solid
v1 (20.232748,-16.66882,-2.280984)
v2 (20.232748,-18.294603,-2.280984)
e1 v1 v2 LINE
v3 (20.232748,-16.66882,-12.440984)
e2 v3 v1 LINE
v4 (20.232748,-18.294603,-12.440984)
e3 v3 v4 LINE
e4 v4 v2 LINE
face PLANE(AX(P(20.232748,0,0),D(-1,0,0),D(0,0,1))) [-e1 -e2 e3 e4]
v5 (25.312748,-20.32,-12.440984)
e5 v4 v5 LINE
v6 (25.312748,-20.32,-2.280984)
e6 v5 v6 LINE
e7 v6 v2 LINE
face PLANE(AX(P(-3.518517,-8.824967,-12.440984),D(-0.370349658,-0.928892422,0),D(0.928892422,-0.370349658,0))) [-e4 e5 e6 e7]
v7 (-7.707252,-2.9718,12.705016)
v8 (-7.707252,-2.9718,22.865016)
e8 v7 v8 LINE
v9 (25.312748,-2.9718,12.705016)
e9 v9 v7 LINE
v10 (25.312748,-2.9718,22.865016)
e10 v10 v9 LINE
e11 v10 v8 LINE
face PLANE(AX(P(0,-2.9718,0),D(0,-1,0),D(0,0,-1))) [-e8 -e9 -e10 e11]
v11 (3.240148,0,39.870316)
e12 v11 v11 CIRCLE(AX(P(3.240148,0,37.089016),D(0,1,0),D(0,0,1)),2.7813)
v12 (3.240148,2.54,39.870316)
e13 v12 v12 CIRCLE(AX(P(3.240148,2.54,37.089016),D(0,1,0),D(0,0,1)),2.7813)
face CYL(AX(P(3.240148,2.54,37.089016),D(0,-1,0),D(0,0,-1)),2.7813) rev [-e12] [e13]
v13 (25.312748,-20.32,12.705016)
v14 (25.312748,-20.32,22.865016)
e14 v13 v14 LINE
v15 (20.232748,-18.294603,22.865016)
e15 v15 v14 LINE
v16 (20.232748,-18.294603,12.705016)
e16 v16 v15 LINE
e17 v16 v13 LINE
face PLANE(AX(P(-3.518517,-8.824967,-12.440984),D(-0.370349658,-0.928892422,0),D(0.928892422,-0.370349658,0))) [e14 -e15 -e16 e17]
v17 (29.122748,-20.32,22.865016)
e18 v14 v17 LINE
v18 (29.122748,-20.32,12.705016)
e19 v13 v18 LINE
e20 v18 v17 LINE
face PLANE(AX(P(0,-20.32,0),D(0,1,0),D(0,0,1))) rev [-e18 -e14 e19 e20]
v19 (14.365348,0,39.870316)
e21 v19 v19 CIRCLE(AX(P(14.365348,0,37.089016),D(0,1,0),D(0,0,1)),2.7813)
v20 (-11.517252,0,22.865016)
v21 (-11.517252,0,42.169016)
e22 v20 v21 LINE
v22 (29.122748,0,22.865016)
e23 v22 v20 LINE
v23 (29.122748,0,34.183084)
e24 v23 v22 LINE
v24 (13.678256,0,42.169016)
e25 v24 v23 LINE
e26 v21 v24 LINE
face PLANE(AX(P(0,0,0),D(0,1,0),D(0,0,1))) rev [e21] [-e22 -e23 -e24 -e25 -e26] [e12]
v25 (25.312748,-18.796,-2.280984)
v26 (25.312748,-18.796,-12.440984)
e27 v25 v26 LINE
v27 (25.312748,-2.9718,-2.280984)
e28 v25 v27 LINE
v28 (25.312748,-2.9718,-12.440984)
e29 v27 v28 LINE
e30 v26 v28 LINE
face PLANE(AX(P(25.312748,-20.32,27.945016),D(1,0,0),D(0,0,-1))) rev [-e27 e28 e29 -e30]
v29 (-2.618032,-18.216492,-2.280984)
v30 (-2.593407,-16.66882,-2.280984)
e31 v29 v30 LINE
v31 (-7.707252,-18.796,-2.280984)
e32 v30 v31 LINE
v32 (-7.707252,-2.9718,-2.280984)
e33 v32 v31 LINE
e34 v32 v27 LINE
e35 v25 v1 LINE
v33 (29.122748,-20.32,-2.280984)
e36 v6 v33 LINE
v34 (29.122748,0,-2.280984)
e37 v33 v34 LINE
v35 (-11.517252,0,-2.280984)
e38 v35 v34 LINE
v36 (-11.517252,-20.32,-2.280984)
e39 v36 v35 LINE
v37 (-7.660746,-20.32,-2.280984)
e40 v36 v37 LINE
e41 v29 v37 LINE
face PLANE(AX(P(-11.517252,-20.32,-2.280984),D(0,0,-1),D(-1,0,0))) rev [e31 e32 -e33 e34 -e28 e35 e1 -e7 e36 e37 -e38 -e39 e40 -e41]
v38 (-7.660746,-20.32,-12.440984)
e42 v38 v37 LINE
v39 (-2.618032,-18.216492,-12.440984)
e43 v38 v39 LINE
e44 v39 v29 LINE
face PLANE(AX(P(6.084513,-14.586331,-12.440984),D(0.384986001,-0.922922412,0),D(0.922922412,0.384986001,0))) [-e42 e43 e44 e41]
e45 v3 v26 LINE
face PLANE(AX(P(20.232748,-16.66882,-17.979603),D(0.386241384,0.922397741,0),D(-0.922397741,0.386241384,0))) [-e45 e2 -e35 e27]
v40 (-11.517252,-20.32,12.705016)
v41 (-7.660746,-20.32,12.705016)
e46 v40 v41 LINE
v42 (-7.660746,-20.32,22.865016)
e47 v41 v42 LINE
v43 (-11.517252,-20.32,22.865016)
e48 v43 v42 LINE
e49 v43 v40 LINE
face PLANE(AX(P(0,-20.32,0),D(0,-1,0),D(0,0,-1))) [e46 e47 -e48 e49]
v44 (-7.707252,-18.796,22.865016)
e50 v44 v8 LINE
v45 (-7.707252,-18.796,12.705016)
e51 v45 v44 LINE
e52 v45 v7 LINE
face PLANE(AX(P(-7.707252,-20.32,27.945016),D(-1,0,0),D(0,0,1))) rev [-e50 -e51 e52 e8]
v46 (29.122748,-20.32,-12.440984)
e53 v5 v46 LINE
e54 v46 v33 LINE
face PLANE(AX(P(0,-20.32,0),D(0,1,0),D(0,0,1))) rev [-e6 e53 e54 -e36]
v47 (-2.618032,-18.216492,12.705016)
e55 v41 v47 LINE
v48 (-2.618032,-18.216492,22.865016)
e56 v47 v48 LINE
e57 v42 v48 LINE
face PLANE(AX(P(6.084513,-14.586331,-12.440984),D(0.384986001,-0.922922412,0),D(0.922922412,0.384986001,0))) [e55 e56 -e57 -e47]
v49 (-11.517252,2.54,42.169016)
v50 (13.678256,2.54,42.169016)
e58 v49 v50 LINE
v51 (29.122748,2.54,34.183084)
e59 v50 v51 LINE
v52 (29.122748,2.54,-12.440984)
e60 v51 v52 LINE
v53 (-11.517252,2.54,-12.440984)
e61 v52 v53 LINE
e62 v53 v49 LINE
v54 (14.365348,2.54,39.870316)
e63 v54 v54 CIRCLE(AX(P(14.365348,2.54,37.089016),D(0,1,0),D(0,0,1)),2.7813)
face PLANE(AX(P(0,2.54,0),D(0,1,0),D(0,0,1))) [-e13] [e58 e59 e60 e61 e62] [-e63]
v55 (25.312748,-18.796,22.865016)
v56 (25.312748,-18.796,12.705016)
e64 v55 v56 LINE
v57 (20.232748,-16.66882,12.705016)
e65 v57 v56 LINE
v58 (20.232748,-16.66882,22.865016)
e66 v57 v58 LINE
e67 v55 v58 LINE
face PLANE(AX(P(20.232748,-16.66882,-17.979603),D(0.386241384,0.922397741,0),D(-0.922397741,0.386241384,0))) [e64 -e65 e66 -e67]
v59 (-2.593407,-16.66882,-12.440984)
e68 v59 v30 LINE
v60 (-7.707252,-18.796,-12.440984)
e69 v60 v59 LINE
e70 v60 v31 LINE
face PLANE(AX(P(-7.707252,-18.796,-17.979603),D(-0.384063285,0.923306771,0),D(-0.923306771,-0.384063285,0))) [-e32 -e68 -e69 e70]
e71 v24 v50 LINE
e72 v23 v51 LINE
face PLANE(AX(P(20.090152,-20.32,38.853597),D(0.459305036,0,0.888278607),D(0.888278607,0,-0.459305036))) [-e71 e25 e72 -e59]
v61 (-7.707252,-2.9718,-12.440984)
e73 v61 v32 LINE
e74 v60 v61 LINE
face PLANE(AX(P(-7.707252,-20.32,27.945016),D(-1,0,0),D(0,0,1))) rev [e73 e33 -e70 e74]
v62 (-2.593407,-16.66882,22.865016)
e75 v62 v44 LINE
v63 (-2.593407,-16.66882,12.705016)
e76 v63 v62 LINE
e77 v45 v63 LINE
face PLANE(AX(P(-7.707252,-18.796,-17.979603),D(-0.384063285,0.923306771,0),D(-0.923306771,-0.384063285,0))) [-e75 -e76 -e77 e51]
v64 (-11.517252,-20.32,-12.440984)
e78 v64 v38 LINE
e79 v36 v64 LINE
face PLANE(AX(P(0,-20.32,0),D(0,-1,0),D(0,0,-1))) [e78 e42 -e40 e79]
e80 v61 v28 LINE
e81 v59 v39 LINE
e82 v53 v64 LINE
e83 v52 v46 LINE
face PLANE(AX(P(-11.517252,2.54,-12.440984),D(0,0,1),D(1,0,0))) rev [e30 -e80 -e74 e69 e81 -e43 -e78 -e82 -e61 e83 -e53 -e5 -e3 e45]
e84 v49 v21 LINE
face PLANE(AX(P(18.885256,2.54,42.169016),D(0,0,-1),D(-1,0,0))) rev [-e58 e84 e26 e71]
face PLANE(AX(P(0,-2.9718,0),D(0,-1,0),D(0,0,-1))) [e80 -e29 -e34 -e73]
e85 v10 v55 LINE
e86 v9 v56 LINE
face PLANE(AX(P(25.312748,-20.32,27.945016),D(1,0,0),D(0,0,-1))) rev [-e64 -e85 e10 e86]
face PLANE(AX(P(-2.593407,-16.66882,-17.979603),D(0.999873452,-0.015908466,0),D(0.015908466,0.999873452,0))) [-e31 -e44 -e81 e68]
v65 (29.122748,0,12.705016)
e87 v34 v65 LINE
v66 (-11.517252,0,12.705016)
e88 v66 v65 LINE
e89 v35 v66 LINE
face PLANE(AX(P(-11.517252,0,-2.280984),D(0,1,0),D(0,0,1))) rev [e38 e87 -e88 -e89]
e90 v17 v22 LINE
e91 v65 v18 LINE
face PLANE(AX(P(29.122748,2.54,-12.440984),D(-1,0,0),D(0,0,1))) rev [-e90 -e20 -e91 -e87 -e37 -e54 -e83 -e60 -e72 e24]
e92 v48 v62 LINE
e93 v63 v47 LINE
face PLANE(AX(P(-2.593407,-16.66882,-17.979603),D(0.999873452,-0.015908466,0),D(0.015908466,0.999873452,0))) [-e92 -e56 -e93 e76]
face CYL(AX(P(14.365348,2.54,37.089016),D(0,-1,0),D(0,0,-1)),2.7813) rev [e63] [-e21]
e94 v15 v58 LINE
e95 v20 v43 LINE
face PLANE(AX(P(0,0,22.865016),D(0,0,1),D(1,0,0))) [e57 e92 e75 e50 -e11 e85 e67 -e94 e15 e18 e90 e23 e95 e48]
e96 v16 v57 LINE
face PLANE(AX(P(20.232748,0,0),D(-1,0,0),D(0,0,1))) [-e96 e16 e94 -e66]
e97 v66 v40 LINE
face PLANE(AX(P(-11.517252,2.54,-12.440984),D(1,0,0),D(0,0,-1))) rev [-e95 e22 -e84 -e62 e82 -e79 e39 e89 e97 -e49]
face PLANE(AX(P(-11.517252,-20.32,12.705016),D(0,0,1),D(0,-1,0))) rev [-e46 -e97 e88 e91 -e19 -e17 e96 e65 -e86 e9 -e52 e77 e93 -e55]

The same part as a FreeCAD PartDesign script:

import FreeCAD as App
import Part
import Sketcher
Q = App.Units.Quantity


def add_polygon(sketch, points):
    """Adds a closed chain of lines whose ends are joined by coincident constraints."""
    first, n = sketch.GeometryCount, len(points)
    for a, b in zip(points, points[1:] + points[:1]):
        sketch.addGeometry(Part.LineSegment(App.Vector(*a, 0), App.Vector(*b, 0)), False)
    for i in range(n):
        sketch.addConstraint(Sketcher.Constraint("Coincident", first + i, 2, first + (i + 1) % n, 1))

doc = App.newDocument("Part")
body = doc.addObject("PartDesign::Body", "Body")

# Sketch on XZ plane
sketch1 = body.newObject("Sketcher::SketchObject", "Sketch")
sketch1.AttachmentSupport = (doc.getObject("XZ_Plane"), [""])
sketch1.MapMode = "FlatFace"
add_polygon(sketch1, [(29.122748, -12.440984), (-11.517252, -12.440984), (-11.517252, 42.169016), (29.122748, 42.169016)])  # lines 0-3
sketch1.addGeometry(Part.Circle(App.Vector(14.365348, 37.089016, 0), App.Vector(0, 0, 1), 2.7813), False)  # 4
sketch1.addGeometry(Part.Circle(App.Vector(3.240148, 37.089016, 0), App.Vector(0, 0, 1), 2.7813), False)  # 5
sketch1.addConstraint([
    Sketcher.Constraint("Horizontal", 0),
    Sketcher.Constraint("Vertical", 1),
    Sketcher.Constraint("Horizontal", 2),
    Sketcher.Constraint("Vertical", 3),
    Sketcher.Constraint("Equal", 4, 5),
    Sketcher.Constraint("Horizontal", 4, 3, 5, 3),
    Sketcher.Constraint("Diameter", 4, Q("0.219 in")),
    Sketcher.Constraint("DistanceX", 0, 2, 0, 1, Q("1.6 in")),
    Sketcher.Constraint("DistanceY", 1, 1, 1, 2, Q("2.15 in")),
    Sketcher.Constraint("DistanceY", 5, 3, 1, 2, Q("0.2 in")),
    Sketcher.Constraint("DistanceX", 5, 3, 4, 3, Q("0.438 in")),
    Sketcher.Constraint("DistanceX", 0, 2, 5, 3, Q("0.581 in")),
    Sketcher.Constraint("DistanceX", -1, 1, 4, 3, Q("14.365348 mm")),
    Sketcher.Constraint("DistanceY", -1, 1, 4, 3, Q("37.089016 mm")),
])
pad1 = body.newObject("PartDesign::Pad", "Pad")
pad1.Profile = sketch1
pad1.Length = Q("0.1 in")
pad1.Reversed = True

# Sketch on XZ plane
sketch2 = body.newObject("Sketcher::SketchObject", "Sketch001")
sketch2.AttachmentSupport = (doc.getObject("XZ_Plane"), [""])
sketch2.MapMode = "FlatFace"
add_polygon(sketch2, [(-11.517252, 27.945016), (-11.517252, -12.440984), (-7.707252, -12.440984), (-7.707252, 27.945016)])  # lines 0-3
add_polygon(sketch2, [(25.312748, 27.945016), (25.312748, -12.440984), (29.122748, -12.440984), (29.122748, 27.945016)])  # lines 4-7
sketch2.addConstraint([
    Sketcher.Constraint("Vertical", 0),
    Sketcher.Constraint("Horizontal", 1),
    Sketcher.Constraint("Vertical", 2),
    Sketcher.Constraint("Horizontal", 3),
    Sketcher.Constraint("Vertical", 4),
    Sketcher.Constraint("Horizontal", 5),
    Sketcher.Constraint("Vertical", 6),
    Sketcher.Constraint("Horizontal", 7),
    Sketcher.Constraint("Horizontal", 1, 2, 4, 2),
    Sketcher.Constraint("Horizontal", 3, 2, 6, 2),
    Sketcher.Constraint("Equal", 3, 5),
    Sketcher.Constraint("DistanceX", 1, 1, 1, 2, Q("0.15 in")),
    Sketcher.Constraint("DistanceY", 0, 2, 0, 1, Q("1.59 in")),
    Sketcher.Constraint("DistanceX", 1, 2, 4, 2, Q("1.3 in")),
    Sketcher.Constraint("DistanceX", 0, 2, -1, 1, Q("11.517252 mm")),
    Sketcher.Constraint("DistanceY", 0, 2, -1, 1, Q("12.440984 mm")),
])
pad2 = body.newObject("PartDesign::Pad", "Pad001")
pad2.Profile = sketch2
pad2.Length = Q("0.8 in")

# Sketch on YZ plane
sketch3 = body.newObject("Sketcher::SketchObject", "Sketch002")
sketch3.AttachmentSupport = (doc.getObject("YZ_Plane"), [""])
sketch3.MapMode = "FlatFace"
sketch3.AttachmentOffset = App.Placement(App.Vector(0, 0, -7.707252), App.Rotation())
add_polygon(sketch3, [(-18.796, 27.945016), (-20.32, 27.945016), (-20.32, -12.440984), (-18.796, -12.440984)])  # lines 0-3
sketch3.addConstraint([
    Sketcher.Constraint("Horizontal", 0),
    Sketcher.Constraint("Vertical", 1),
    Sketcher.Constraint("Horizontal", 2),
    Sketcher.Constraint("Vertical", 3),
    Sketcher.Constraint("DistanceX", 0, 2, 0, 1, Q("0.06 in")),
    Sketcher.Constraint("DistanceY", 1, 2, 1, 1, Q("1.59 in")),
    Sketcher.Constraint("DistanceX", 0, 2, -1, 1, Q("0.8 in")),
    Sketcher.Constraint("DistanceY", -1, 1, 0, 2, Q("27.945016 mm")),
])
pad3 = body.newObject("PartDesign::Pad", "Pad002")
pad3.Profile = sketch3
pad3.Length = Q("0.2 in")

# Sketch on YZ plane
sketch4 = body.newObject("Sketcher::SketchObject", "Sketch003")
sketch4.AttachmentSupport = (doc.getObject("YZ_Plane"), [""])
sketch4.MapMode = "FlatFace"
sketch4.AttachmentOffset = App.Placement(App.Vector(0, 0, 25.312748), App.Rotation())
add_polygon(sketch4, [(-18.796, -12.440984), (-20.32, -12.440984), (-20.32, 27.945016), (-18.796, 27.945016)])  # lines 0-3
sketch4.addConstraint([
    Sketcher.Constraint("Horizontal", 0),
    Sketcher.Constraint("Vertical", 1),
    Sketcher.Constraint("Horizontal", 2),
    Sketcher.Constraint("Vertical", 3),
    Sketcher.Constraint("DistanceX", 0, 2, 0, 1, Q("0.06 in")),
    Sketcher.Constraint("DistanceY", 1, 1, 1, 2, Q("1.59 in")),
    Sketcher.Constraint("DistanceX", 0, 2, -1, 1, Q("0.8 in")),
    Sketcher.Constraint("DistanceY", 0, 2, -1, 1, Q("12.440984 mm")),
])
pad4 = body.newObject("PartDesign::Pad", "Pad003")
pad4.Profile = sketch4
pad4.Length = Q("0.2 in")
pad4.Reversed = True

# Sketch on XY plane
sketch5 = body.newObject("Sketcher::SketchObject", "Sketch004")
sketch5.AttachmentSupport = (doc.getObject("XY_Plane"), [""])
sketch5.MapMode = "FlatFace"
sketch5.AttachmentOffset = App.Placement(App.Vector(0, 0, 27.945016), App.Rotation())
add_polygon(sketch5, [(-11.517252, 0), (-11.517252, -20.32), (29.122748, -20.32), (29.122748, 0)])  # lines 0-3
sketch5.addConstraint([
    Sketcher.Constraint("Vertical", 0),
    Sketcher.Constraint("Horizontal", 1),
    Sketcher.Constraint("Vertical", 2),
    Sketcher.Constraint("Horizontal", 3),
    Sketcher.Constraint("PointOnObject", 2, 2, -1),
    Sketcher.Constraint("DistanceX", 1, 1, 1, 2, Q("1.6 in")),
    Sketcher.Constraint("DistanceY", 0, 2, 0, 1, Q("0.8 in")),
    Sketcher.Constraint("DistanceX", 0, 2, -1, 1, Q("11.517252 mm")),
])
pocket1 = body.newObject("PartDesign::Pocket", "Pocket")
pocket1.Profile = sketch5
pocket1.Length = Q("0.2 in")

# Sketch on XZ plane
sketch6 = body.newObject("Sketcher::SketchObject", "Sketch005")
sketch6.AttachmentSupport = (doc.getObject("XZ_Plane"), [""])
sketch6.MapMode = "FlatFace"
add_polygon(sketch6, [(-11.517252, 22.865016), (-11.517252, -12.440984), (29.122748, -12.440984), (29.122748, 22.865016)])  # lines 0-3
sketch6.addConstraint([
    Sketcher.Constraint("Vertical", 0),
    Sketcher.Constraint("Horizontal", 1),
    Sketcher.Constraint("Vertical", 2),
    Sketcher.Constraint("Horizontal", 3),
    Sketcher.Constraint("DistanceX", 1, 1, 1, 2, Q("1.6 in")),
    Sketcher.Constraint("DistanceY", 0, 2, 0, 1, Q("1.39 in")),
    Sketcher.Constraint("DistanceX", 0, 2, -1, 1, Q("11.517252 mm")),
    Sketcher.Constraint("DistanceY", 0, 2, -1, 1, Q("12.440984 mm")),
])
pad5 = body.newObject("PartDesign::Pad", "Pad004")
pad5.Profile = sketch6
pad5.Length = Q("0.117 in")

# Sketch on XY plane
sketch7 = body.newObject("Sketcher::SketchObject", "Sketch006")
sketch7.AttachmentSupport = (doc.getObject("XY_Plane"), [""])
sketch7.MapMode = "FlatFace"
sketch7.AttachmentOffset = App.Placement(App.Vector(0, 0, 22.865016), App.Rotation())
add_polygon(sketch7, [(-2.593407, -16.66882), (-7.707252, -18.796), (-2.627252, -18.796)])  # lines 0-2
add_polygon(sketch7, [(20.232748, -16.66882), (20.232748, -18.796), (25.312748, -18.796)])  # lines 3-5
sketch7.addConstraint([
    Sketcher.Constraint("Horizontal", 1),
    Sketcher.Constraint("Vertical", 3),
    Sketcher.Constraint("Horizontal", 4),
    Sketcher.Constraint("Horizontal", 1, 2, 3, 2),
    Sketcher.Constraint("Horizontal", 2, 2, 5, 2),
    Sketcher.Constraint("Equal", 1, 4),
    Sketcher.Constraint("DistanceX", 1, 1, 1, 2, Q("0.2 in")),
    Sketcher.Constraint("DistanceX", 1, 2, 3, 2, Q("0.9 in")),
    Sketcher.Constraint("DistanceY", 0, 2, -1, 1, Q("0.74 in")),
    Sketcher.Constraint("DistanceY", 3, 2, 3, 1, Q("2.12718 mm")),
    Sketcher.Constraint("Distance", 0, Q("5.538619 mm")),
    Sketcher.Constraint("DistanceX", 0, 2, -1, 1, Q("7.707252 mm")),
])
pad6 = body.newObject("PartDesign::Pad", "Pad005")
pad6.Profile = sketch7
pad6.Length = Q("1.39 in")
pad6.Reversed = True

# Sketch on YZ plane
sketch8 = body.newObject("Sketcher::SketchObject", "Sketch007")
sketch8.AttachmentSupport = (doc.getObject("YZ_Plane"), [""])
sketch8.MapMode = "FlatFace"
sketch8.AttachmentOffset = App.Placement(App.Vector(0, 0, 29.122748), App.Rotation())
add_polygon(sketch8, [(0, 12.705016), (-20.32, 12.705016), (-20.32, -2.280984), (0, -2.280984)])  # lines 0-3
sketch8.addConstraint([
    Sketcher.Constraint("Horizontal", 0),
    Sketcher.Constraint("Vertical", 1),
    Sketcher.Constraint("Horizontal", 2),
    Sketcher.Constraint("Vertical", 3),
    Sketcher.Constraint("PointOnObject", 2, 2, -2),
    Sketcher.Constraint("DistanceX", 0, 2, 0, 1, Q("0.8 in")),
    Sketcher.Constraint("DistanceY", 1, 2, 1, 1, Q("0.59 in")),
    Sketcher.Constraint("DistanceY", -1, 1, 0, 2, Q("12.705016 mm")),
])
pocket2 = body.newObject("PartDesign::Pocket", "Pocket001")
pocket2.Profile = sketch8
pocket2.Type = "ThroughAll"

# Sketch on XY plane
sketch9 = body.newObject("Sketcher::SketchObject", "Sketch008")
sketch9.AttachmentSupport = (doc.getObject("XY_Plane"), [""])
sketch9.MapMode = "FlatFace"
sketch9.AttachmentOffset = App.Placement(App.Vector(0, 0, 22.865016), App.Rotation())
add_polygon(sketch9, [(-2.618032, -18.216492), (-7.660746, -20.32), (-2.627252, -20.32), (-2.627252, -18.796)])  # lines 0-3
add_polygon(sketch9, [(20.232748, -18.294603), (20.232748, -20.32), (25.312748, -20.32)])  # lines 4-6
sketch9.addConstraint([
    Sketcher.Constraint("Horizontal", 1),
    Sketcher.Constraint("Vertical", 2),
    Sketcher.Constraint("Vertical", 4),
    Sketcher.Constraint("Horizontal", 5),
    Sketcher.Constraint("Horizontal", 1, 2, 4, 2),
    Sketcher.Constraint("DistanceX", 5, 1, 5, 2, Q("0.2 in")),
    Sketcher.Constraint("DistanceY", 2, 1, 2, 2, Q("0.06 in")),
    Sketcher.Constraint("DistanceY", 0, 2, -1, 1, Q("0.8 in")),
    Sketcher.Constraint("DistanceX", 1, 2, 4, 2, Q("0.9 in")),
    Sketcher.Constraint("Distance", 3, Q("0.579581 mm")),
    Sketcher.Constraint("Distance", 6, Q("5.468879 mm")),
    Sketcher.Constraint("DistanceX", 1, 1, 1, 2, Q("5.033494 mm")),
    Sketcher.Constraint("DistanceX", 1, 2, -1, 1, Q("2.627252 mm")),
    Sketcher.Constraint("DistanceX", 3, 2, -1, 1, Q("2.618032 mm")),
])
pocket3 = body.newObject("PartDesign::Pocket", "Pocket002")
pocket3.Profile = sketch9
pocket3.Type = "ThroughAll"

# Sketch on XZ plane
sketch10 = body.newObject("Sketcher::SketchObject", "Sketch009")
sketch10.AttachmentSupport = (doc.getObject("XZ_Plane"), [""])
sketch10.MapMode = "FlatFace"
sketch10.addGeometry([
    Part.Circle(App.Vector(3.240148, 37.089016, 0), App.Vector(0, 0, 1), 3.81),
    Part.Circle(App.Vector(3.240148, 37.089016, 0), App.Vector(0, 0, 1), 2.7813),
    Part.Circle(App.Vector(14.365348, 37.089016, 0), App.Vector(0, 0, 1), 3.81),
    Part.Circle(App.Vector(14.365348, 37.089016, 0), App.Vector(0, 0, 1), 2.7813),
], False)
sketch10.addConstraint([
    Sketcher.Constraint("Coincident", 1, 3, 0, 3),
    Sketcher.Constraint("Coincident", 3, 3, 2, 3),
    Sketcher.Constraint("Equal", 0, 2),
    Sketcher.Constraint("Equal", 1, 3),
    Sketcher.Constraint("Horizontal", 1, 3, 2, 3),
    Sketcher.Constraint("Diameter", 0, Q("0.3 in")),
    Sketcher.Constraint("Diameter", 1, Q("0.219 in")),
    Sketcher.Constraint("DistanceX", 0, 3, 2, 3, Q("0.438 in")),
    Sketcher.Constraint("DistanceX", -1, 1, 0, 3, Q("3.240148 mm")),
    Sketcher.Constraint("DistanceY", -1, 1, 0, 3, Q("37.089016 mm")),
])
pad7 = body.newObject("PartDesign::Pad", "Pad006")
pad7.Profile = sketch10
pad7.Length = Q("0.1 in")
pad7.Reversed = True

# Sketch on XZ plane
sketch11 = body.newObject("Sketcher::SketchObject", "Sketch010")
sketch11.AttachmentSupport = (doc.getObject("XZ_Plane"), [""])
sketch11.MapMode = "FlatFace"
sketch11.AttachmentOffset = App.Placement(App.Vector(0, 0, -0.1 * 25.4), App.Rotation())
add_polygon(sketch11, [(18.885256, 39.476616), (13.678256, 42.169016), (29.122748, 42.169016), (29.122748, 34.183084)])  # lines 0-3
sketch11.addConstraint([
    Sketcher.Constraint("Horizontal", 1),
    Sketcher.Constraint("Vertical", 2),
    Sketcher.Constraint("Parallel", 0, 3),
    Sketcher.Constraint("DistanceX", 0, 2, 3, 2, Q("0.205 in")),
    Sketcher.Constraint("DistanceY", 3, 2, 0, 2, Q("0.106 in")),
    Sketcher.Constraint("DistanceX", 1, 1, 1, 2, Q("15.444492 mm")),
    Sketcher.Constraint("DistanceX", -1, 1, 1, 2, Q("29.122748 mm")),
    Sketcher.Constraint("DistanceY", -1, 1, 0, 2, Q("42.169016 mm")),
])
pocket4 = body.newObject("PartDesign::Pocket", "Pocket003")
pocket4.Profile = sketch11
pocket4.Type = "ThroughAll"
pocket4.Reversed = True

doc.recompute()
